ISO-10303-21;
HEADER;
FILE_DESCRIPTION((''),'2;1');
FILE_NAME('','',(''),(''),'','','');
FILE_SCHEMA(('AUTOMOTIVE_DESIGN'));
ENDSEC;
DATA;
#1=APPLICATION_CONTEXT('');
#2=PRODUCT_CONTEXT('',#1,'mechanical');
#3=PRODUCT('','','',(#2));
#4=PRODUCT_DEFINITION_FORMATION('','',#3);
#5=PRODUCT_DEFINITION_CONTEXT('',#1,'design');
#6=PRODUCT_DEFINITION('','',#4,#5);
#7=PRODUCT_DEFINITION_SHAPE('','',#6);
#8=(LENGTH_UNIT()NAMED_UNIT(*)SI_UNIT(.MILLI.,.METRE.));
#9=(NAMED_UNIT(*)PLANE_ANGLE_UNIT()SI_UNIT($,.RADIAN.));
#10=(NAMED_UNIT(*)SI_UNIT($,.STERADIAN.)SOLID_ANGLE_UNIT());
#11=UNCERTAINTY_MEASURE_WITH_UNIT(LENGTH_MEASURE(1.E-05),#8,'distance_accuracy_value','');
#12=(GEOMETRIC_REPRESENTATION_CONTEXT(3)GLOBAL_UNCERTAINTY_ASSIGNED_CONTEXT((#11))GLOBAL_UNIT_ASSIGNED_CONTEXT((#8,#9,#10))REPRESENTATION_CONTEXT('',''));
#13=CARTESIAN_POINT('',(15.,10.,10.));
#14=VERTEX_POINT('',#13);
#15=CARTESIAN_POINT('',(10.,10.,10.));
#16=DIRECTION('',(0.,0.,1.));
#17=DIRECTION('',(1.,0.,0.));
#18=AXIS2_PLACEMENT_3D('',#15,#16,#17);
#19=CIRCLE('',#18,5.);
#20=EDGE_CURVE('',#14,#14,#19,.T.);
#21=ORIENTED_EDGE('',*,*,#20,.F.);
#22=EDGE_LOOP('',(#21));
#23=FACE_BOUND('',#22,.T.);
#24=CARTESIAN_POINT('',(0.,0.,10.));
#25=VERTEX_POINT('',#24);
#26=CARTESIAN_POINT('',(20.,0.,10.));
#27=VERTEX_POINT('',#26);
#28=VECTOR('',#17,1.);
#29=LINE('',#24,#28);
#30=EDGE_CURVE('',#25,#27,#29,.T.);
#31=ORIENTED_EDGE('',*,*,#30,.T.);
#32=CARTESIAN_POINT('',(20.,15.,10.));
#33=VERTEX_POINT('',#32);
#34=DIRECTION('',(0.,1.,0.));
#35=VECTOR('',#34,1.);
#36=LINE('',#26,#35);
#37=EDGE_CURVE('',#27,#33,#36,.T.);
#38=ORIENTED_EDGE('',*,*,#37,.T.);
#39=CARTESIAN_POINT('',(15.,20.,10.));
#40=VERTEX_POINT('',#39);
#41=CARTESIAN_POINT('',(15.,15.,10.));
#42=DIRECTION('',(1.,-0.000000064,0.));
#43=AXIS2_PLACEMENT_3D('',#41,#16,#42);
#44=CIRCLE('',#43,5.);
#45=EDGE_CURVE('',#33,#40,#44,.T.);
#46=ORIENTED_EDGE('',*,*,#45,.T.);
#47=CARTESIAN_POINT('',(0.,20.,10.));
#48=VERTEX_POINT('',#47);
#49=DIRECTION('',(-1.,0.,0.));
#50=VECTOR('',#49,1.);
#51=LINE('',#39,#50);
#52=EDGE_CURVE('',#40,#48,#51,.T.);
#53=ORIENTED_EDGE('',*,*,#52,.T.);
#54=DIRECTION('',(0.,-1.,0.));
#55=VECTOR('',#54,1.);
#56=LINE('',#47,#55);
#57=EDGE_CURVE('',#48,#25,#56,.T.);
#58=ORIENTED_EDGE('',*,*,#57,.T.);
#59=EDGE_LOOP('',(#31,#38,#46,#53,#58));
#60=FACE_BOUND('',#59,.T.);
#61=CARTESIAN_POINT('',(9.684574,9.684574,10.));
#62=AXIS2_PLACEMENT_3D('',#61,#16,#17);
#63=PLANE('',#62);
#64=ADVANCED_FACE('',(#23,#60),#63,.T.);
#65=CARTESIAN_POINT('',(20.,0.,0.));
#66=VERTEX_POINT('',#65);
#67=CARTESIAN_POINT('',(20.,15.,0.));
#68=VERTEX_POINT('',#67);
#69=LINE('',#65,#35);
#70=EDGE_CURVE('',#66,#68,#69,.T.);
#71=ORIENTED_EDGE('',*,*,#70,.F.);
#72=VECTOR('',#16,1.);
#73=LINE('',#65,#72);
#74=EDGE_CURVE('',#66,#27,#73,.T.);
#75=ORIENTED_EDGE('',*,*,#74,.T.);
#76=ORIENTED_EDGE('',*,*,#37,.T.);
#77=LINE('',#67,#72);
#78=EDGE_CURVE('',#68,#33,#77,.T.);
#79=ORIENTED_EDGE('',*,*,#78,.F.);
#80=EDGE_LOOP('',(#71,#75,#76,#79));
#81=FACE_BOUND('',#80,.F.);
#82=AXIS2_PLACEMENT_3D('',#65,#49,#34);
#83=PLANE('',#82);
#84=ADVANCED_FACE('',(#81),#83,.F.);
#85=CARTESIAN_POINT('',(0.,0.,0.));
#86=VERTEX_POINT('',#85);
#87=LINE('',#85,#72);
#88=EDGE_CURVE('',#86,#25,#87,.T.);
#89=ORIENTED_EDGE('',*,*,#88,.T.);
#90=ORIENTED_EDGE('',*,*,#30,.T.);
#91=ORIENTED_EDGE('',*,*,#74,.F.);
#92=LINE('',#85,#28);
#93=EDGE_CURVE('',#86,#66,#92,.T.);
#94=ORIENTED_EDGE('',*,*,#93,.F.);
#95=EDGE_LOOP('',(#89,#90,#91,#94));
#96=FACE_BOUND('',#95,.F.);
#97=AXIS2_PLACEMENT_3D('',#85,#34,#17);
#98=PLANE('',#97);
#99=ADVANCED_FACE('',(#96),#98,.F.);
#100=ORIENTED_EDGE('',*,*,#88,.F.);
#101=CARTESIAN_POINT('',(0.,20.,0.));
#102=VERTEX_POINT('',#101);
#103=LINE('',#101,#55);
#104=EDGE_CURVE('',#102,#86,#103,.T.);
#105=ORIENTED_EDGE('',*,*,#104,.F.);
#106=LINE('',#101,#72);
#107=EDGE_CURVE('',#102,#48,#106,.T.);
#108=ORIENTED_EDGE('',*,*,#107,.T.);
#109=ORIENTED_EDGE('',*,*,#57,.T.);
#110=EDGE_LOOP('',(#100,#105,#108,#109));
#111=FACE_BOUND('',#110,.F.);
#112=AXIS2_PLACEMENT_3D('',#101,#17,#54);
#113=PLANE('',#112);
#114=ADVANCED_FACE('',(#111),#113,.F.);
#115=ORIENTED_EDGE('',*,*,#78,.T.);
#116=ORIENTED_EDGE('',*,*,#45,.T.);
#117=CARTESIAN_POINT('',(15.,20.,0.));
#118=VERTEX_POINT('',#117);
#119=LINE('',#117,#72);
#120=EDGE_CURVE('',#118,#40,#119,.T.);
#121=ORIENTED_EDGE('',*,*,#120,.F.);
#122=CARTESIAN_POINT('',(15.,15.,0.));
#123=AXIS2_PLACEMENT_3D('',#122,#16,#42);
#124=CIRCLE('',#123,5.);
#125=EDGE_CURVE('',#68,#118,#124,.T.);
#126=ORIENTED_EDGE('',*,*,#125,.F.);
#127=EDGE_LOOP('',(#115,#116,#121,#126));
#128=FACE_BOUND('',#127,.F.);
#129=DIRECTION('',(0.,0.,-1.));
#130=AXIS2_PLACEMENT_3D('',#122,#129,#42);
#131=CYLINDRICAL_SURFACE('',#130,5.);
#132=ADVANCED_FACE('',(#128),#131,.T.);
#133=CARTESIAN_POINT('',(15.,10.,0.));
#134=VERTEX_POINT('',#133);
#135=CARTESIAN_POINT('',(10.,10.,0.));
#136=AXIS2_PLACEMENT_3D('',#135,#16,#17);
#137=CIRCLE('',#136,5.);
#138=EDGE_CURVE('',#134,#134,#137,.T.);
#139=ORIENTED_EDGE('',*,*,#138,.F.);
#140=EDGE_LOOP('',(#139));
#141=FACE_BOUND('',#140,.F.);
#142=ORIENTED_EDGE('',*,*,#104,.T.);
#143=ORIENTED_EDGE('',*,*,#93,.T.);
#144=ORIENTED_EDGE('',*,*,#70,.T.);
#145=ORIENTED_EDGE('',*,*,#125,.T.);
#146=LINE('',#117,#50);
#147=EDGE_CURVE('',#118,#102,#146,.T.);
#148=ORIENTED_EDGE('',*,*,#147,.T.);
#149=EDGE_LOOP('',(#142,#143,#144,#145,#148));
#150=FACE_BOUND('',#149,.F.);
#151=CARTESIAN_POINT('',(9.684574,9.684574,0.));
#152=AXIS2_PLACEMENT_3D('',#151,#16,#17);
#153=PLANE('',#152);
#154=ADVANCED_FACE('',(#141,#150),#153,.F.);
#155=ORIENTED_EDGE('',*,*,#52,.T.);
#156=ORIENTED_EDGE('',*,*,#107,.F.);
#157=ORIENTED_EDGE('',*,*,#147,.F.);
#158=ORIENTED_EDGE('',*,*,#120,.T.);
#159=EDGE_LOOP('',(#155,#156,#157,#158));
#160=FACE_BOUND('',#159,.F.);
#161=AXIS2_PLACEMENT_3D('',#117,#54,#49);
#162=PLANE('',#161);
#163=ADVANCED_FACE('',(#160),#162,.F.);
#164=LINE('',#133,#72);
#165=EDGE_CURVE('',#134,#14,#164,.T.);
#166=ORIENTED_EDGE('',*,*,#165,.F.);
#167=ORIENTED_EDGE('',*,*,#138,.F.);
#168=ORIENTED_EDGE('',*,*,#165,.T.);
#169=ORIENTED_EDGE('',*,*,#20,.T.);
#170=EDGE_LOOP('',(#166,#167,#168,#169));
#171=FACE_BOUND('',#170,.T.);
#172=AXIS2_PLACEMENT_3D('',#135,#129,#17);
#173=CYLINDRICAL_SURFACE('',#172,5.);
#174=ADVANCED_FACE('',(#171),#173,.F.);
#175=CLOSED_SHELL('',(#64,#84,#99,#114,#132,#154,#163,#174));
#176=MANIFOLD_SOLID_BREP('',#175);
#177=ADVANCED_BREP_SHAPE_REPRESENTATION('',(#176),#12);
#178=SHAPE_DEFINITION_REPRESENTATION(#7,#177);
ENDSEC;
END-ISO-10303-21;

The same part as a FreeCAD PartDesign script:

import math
import FreeCAD as App
import Part
import Sketcher

doc = App.newDocument("Part")
params = doc.addObject("Spreadsheet::Sheet", "Params")
for row, (alias, value) in enumerate([
    ("sketch1_diameter", "10 mm"),
    ("sketch1_width", "20 mm"),
    ("pad1_length", "10 mm"),
], start=1):
    params.set(f"A{row}", alias)
    params.set(f"B{row}", "=" + value)
    params.setAlias(f"B{row}", alias)

body = doc.addObject("PartDesign::Body", "Body")

# Sketch on XY plane
sketch1 = body.newObject("Sketcher::SketchObject", "Sketch")
sketch1.AttachmentSupport = (doc.getObject("XY_Plane"), [""])
sketch1.MapMode = "FlatFace"
sketch1.addGeometry(Part.LineSegment(App.Vector(0, 20, 0), App.Vector(0, 0, 0)), False)
sketch1.addGeometry(Part.LineSegment(App.Vector(0, 0, 0), App.Vector(20, 0, 0)), False)
sketch1.addGeometry(Part.LineSegment(App.Vector(20, 0, 0), App.Vector(20, 15, 0)), False)
sketch1.addGeometry(Part.ArcOfCircle(Part.Circle(App.Vector(15, 15, 0), App.Vector(0, 0, 1), 5), math.radians(-0.000004), math.radians(90.000004)), False)
sketch1.addGeometry(Part.LineSegment(App.Vector(15, 20, 0), App.Vector(0, 20, 0)), False)
sketch1.addGeometry(Part.Circle(App.Vector(10, 10, 0), App.Vector(0, 0, 1), 5), False)
sketch1.addConstraint(Sketcher.Constraint("Coincident", 0, 2, 1, 1))
sketch1.addConstraint(Sketcher.Constraint("Coincident", 1, 2, 2, 1))
sketch1.addConstraint(Sketcher.Constraint("Tangent", 2, 2, 3, 1))
sketch1.addConstraint(Sketcher.Constraint("Tangent", 3, 2, 4, 1))
sketch1.addConstraint(Sketcher.Constraint("Coincident", 4, 2, 0, 1))
sketch1.addConstraint(Sketcher.Constraint("Vertical", 0))
sketch1.addConstraint(Sketcher.Constraint("Horizontal", 1))
sketch1.addConstraint(Sketcher.Constraint("Vertical", 2))
sketch1.addConstraint(Sketcher.Constraint("Horizontal", 4))
sketch1.addConstraint(Sketcher.Constraint("Coincident", 0, 2, -1, 1))
sketch1.addConstraint(Sketcher.Constraint("Equal", 3, 5))
sketch1.addConstraint(Sketcher.Constraint("Equal", 1, 0))
sketch1.addConstraint(Sketcher.Constraint("Diameter", 5, 10.0))
sketch1.addConstraint(Sketcher.Constraint("DistanceX", 1, 1, 1, 2, 20.0))
sketch1.addConstraint(Sketcher.Constraint("DistanceX", -1, 1, 5, 3, 10.0))
sketch1.addConstraint(Sketcher.Constraint("DistanceY", -1, 1, 5, 3, 10.0))
sketch1.setExpression("Constraints[12]", "Params.sketch1_diameter")
sketch1.setExpression("Constraints[13]", "Params.sketch1_width")
pad1 = body.newObject("PartDesign::Pad", "Pad")
pad1.Profile = sketch1
pad1.setExpression("Length", "Params.pad1_length")

doc.recompute()
